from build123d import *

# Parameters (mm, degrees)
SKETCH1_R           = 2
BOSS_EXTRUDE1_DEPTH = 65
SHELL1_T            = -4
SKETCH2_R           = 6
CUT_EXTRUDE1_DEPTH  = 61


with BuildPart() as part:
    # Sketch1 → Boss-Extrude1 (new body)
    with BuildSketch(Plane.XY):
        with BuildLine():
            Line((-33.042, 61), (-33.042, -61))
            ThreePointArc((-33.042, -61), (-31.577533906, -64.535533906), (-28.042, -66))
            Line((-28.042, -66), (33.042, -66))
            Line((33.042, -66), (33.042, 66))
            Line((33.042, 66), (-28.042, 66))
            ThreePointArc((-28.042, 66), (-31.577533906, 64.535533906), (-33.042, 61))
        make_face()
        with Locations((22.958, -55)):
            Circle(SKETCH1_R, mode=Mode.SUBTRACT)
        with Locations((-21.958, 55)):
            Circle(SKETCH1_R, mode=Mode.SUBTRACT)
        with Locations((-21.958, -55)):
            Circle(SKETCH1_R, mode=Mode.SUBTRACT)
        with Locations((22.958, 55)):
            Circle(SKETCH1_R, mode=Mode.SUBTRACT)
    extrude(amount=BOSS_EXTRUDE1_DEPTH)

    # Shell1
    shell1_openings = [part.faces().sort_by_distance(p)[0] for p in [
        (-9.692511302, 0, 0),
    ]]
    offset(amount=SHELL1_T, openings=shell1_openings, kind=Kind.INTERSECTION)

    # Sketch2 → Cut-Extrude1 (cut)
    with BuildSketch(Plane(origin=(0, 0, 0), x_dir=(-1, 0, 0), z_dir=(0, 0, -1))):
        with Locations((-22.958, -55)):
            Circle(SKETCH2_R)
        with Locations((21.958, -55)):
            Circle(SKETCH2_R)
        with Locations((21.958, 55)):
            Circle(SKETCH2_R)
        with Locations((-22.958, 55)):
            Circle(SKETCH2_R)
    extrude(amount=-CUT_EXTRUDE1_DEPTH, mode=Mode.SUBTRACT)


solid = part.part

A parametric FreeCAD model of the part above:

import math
import FreeCAD as App
import Part
import Sketcher
from FreeCAD import Vector
Q = App.Units.Quantity


def faces_at(feature, points):
    """Names of the faces that lie closest to the given points."""
    faces = feature.Shape.Faces
    near = lambda p: min(range(len(faces)), key=lambda i: faces[i].distToShape(Part.Vertex(*p))[0])
    return sorted({f"Face{near(p) + 1}" for p in points})

doc = App.newDocument("Part")
body = doc.addObject("PartDesign::Body", "Body")

# Sketch on XY plane
sketch1 = doc.addObject("Sketcher::SketchObject", "Sketch")
body.addObject(sketch1)
sketch1.AttachmentSupport = (doc.XY_Plane, [""])
sketch1.MapMode = "FlatFace"
sketch1.addGeometry([
    Part.LineSegment(Vector(-33.042, 61, 0), Vector(-33.042, -61, 0)),  # 0
    Part.ArcOfCircle(Part.Circle(Vector(-28.042, -61, 0), Vector(0, 0, 1), 5), math.radians(180), math.radians(270)),  # 1
    Part.LineSegment(Vector(-28.042, -66, 0), Vector(33.042, -66, 0)),  # 2
    Part.LineSegment(Vector(33.042, -66, 0), Vector(33.042, 66, 0)),  # 3
    Part.LineSegment(Vector(33.042, 66, 0), Vector(-28.042, 66, 0)),  # 4
    Part.ArcOfCircle(Part.Circle(Vector(-28.042, 61, 0), Vector(0, 0, 1), 5), math.radians(90), math.radians(180)),  # 5
    Part.Circle(Vector(-21.958, -55, 0), Vector(0, 0, 1), 2),  # 6
    Part.Circle(Vector(22.958, -55, 0), Vector(0, 0, 1), 2),  # 7
    Part.Circle(Vector(-21.958, 55, 0), Vector(0, 0, 1), 2),  # 8
    Part.Circle(Vector(22.958, 55, 0), Vector(0, 0, 1), 2),  # 9
], False)
sketch1.addConstraint([
    Sketcher.Constraint("Tangent", 0, 2, 1, 1),
    Sketcher.Constraint("Tangent", 1, 2, 2, 1),
    Sketcher.Constraint("Coincident", 2, 2, 3, 1),
    Sketcher.Constraint("Coincident", 3, 2, 4, 1),
    Sketcher.Constraint("Tangent", 4, 2, 5, 1),
    Sketcher.Constraint("Tangent", 5, 2, 0, 1),
    Sketcher.Constraint("Vertical", 0),
    Sketcher.Constraint("Horizontal", 2),
    Sketcher.Constraint("Vertical", 3),
    Sketcher.Constraint("Horizontal", 4),
    Sketcher.Constraint("Equal", 1, 5),
    Sketcher.Constraint("Equal", 6, 7),
    Sketcher.Constraint("Equal", 7, 8),
    Sketcher.Constraint("Equal", 8, 9),
    Sketcher.Constraint("Symmetric", 6, 3, 8, 3, -1),
    Sketcher.Constraint("Symmetric", 7, 3, 9, 3, -1),
    Sketcher.Constraint("Horizontal", 6, 3, 7, 3),
    Sketcher.Constraint("Diameter", 6, Q("4 mm")),
    Sketcher.Constraint("Radius", 1, Q("5 mm")),
    Sketcher.Constraint("DistanceY", 0, 2, 0, 1, Q("122 mm")),
    Sketcher.Constraint("DistanceY", 1, 3, -1, 1, Q("61 mm")),
    Sketcher.Constraint("DistanceY", 6, 3, -1, 1, Q("55 mm")),
    Sketcher.Constraint("DistanceX", 1, 3, 7, 3, Q("51 mm")),
    Sketcher.Constraint("DistanceX", 6, 3, 2, 2, Q("55 mm")),
    Sketcher.Constraint("DistanceX", 2, 1, 2, 2, Q("61.084 mm")),
    Sketcher.Constraint("DistanceX", 1, 3, -1, 1, Q("28.042 mm")),
])
pad1 = doc.addObject("PartDesign::Pad", "Pad")
body.addObject(pad1)
pad1.Profile = sketch1
pad1.Length = 65
doc.recompute()

thickness = doc.addObject("PartDesign::Thickness", "Thickness")
body.addObject(thickness)
thickness.Base = (pad1, faces_at(pad1, [(0, 0, 0)]))
thickness.Value = 4
thickness.Reversed = True
thickness.Join = "Intersection"

# Sketch on XY plane
sketch2 = doc.addObject("Sketcher::SketchObject", "Sketch001")
body.addObject(sketch2)
sketch2.AttachmentSupport = (doc.XY_Plane, [""])
sketch2.MapMode = "FlatFace"
sketch2.addGeometry([
    Part.Circle(Vector(22.958, -55, 0), Vector(0, 0, 1), 6),
    Part.Circle(Vector(-21.958, -55, 0), Vector(0, 0, 1), 6),
    Part.Circle(Vector(-21.958, 55, 0), Vector(0, 0, 1), 6),
    Part.Circle(Vector(22.958, 55, 0), Vector(0, 0, 1), 6),
], False)
sketch2.addConstraint([
    Sketcher.Constraint("Equal", 0, 1),
    Sketcher.Constraint("Equal", 1, 2),
    Sketcher.Constraint("Equal", 2, 3),
    Sketcher.Constraint("Symmetric", 1, 3, 2, 3, -1),
    Sketcher.Constraint("Symmetric", 0, 3, 3, 3, -1),
    Sketcher.Constraint("Horizontal", 0, 3, 1, 3),
    Sketcher.Constraint("Diameter", 0, Q("12 mm")),
    Sketcher.Constraint("DistanceY", 0, 3, -1, 1, Q("55 mm")),
    Sketcher.Constraint("DistanceX", -1, 1, 0, 3, Q("22.958 mm")),
    Sketcher.Constraint("DistanceX", 1, 3, -1, 1, Q("21.958 mm")),
])
pocket1 = doc.addObject("PartDesign::Pocket", "Pocket")
body.addObject(pocket1)
pocket1.Profile = sketch2
pocket1.Length = 61
pocket1.Reversed = True

doc.recompute()
